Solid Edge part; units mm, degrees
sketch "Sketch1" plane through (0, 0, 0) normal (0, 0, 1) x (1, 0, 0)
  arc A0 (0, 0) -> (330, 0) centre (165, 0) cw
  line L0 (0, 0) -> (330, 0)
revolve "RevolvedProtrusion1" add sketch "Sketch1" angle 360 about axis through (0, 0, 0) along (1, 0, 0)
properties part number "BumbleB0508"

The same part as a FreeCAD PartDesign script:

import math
import FreeCAD as App
import Part
import Sketcher

doc = App.newDocument("Part")
body = doc.addObject("PartDesign::Body", "Body")

# Sketch on XY plane
sketch1 = body.newObject("Sketcher::SketchObject", "Sketch")
sketch1.AttachmentSupport = (doc.getObject("XY_Plane"), [""])
sketch1.MapMode = "FlatFace"
sketch1.addGeometry([
    Part.ArcOfCircle(Part.Circle(App.Vector(165, 0, 0), App.Vector(0, 0, 1), 165), math.radians(0), math.radians(180)),
    Part.LineSegment(App.Vector(0, 0, 0), App.Vector(330, 0, 0)),
], False)
sketch1.addConstraint([
    Sketcher.Constraint("Coincident", 0, 1, 1, 2),
    Sketcher.Constraint("Coincident", 1, 1, 0, 2),
    Sketcher.Constraint("Horizontal", 1),
    Sketcher.Constraint("Coincident", 1, 1, -1, 1),
    Sketcher.Constraint("PointOnObject", 0, 3, -1),
    Sketcher.Constraint("Radius", 0, 165.0),
])
revolution = body.newObject("PartDesign::Revolution", "Revolution")
revolution.Profile = sketch1
revolution.ReferenceAxis = (sketch1, ["H_Axis"])
revolution.Angle = 360

doc.recompute()
